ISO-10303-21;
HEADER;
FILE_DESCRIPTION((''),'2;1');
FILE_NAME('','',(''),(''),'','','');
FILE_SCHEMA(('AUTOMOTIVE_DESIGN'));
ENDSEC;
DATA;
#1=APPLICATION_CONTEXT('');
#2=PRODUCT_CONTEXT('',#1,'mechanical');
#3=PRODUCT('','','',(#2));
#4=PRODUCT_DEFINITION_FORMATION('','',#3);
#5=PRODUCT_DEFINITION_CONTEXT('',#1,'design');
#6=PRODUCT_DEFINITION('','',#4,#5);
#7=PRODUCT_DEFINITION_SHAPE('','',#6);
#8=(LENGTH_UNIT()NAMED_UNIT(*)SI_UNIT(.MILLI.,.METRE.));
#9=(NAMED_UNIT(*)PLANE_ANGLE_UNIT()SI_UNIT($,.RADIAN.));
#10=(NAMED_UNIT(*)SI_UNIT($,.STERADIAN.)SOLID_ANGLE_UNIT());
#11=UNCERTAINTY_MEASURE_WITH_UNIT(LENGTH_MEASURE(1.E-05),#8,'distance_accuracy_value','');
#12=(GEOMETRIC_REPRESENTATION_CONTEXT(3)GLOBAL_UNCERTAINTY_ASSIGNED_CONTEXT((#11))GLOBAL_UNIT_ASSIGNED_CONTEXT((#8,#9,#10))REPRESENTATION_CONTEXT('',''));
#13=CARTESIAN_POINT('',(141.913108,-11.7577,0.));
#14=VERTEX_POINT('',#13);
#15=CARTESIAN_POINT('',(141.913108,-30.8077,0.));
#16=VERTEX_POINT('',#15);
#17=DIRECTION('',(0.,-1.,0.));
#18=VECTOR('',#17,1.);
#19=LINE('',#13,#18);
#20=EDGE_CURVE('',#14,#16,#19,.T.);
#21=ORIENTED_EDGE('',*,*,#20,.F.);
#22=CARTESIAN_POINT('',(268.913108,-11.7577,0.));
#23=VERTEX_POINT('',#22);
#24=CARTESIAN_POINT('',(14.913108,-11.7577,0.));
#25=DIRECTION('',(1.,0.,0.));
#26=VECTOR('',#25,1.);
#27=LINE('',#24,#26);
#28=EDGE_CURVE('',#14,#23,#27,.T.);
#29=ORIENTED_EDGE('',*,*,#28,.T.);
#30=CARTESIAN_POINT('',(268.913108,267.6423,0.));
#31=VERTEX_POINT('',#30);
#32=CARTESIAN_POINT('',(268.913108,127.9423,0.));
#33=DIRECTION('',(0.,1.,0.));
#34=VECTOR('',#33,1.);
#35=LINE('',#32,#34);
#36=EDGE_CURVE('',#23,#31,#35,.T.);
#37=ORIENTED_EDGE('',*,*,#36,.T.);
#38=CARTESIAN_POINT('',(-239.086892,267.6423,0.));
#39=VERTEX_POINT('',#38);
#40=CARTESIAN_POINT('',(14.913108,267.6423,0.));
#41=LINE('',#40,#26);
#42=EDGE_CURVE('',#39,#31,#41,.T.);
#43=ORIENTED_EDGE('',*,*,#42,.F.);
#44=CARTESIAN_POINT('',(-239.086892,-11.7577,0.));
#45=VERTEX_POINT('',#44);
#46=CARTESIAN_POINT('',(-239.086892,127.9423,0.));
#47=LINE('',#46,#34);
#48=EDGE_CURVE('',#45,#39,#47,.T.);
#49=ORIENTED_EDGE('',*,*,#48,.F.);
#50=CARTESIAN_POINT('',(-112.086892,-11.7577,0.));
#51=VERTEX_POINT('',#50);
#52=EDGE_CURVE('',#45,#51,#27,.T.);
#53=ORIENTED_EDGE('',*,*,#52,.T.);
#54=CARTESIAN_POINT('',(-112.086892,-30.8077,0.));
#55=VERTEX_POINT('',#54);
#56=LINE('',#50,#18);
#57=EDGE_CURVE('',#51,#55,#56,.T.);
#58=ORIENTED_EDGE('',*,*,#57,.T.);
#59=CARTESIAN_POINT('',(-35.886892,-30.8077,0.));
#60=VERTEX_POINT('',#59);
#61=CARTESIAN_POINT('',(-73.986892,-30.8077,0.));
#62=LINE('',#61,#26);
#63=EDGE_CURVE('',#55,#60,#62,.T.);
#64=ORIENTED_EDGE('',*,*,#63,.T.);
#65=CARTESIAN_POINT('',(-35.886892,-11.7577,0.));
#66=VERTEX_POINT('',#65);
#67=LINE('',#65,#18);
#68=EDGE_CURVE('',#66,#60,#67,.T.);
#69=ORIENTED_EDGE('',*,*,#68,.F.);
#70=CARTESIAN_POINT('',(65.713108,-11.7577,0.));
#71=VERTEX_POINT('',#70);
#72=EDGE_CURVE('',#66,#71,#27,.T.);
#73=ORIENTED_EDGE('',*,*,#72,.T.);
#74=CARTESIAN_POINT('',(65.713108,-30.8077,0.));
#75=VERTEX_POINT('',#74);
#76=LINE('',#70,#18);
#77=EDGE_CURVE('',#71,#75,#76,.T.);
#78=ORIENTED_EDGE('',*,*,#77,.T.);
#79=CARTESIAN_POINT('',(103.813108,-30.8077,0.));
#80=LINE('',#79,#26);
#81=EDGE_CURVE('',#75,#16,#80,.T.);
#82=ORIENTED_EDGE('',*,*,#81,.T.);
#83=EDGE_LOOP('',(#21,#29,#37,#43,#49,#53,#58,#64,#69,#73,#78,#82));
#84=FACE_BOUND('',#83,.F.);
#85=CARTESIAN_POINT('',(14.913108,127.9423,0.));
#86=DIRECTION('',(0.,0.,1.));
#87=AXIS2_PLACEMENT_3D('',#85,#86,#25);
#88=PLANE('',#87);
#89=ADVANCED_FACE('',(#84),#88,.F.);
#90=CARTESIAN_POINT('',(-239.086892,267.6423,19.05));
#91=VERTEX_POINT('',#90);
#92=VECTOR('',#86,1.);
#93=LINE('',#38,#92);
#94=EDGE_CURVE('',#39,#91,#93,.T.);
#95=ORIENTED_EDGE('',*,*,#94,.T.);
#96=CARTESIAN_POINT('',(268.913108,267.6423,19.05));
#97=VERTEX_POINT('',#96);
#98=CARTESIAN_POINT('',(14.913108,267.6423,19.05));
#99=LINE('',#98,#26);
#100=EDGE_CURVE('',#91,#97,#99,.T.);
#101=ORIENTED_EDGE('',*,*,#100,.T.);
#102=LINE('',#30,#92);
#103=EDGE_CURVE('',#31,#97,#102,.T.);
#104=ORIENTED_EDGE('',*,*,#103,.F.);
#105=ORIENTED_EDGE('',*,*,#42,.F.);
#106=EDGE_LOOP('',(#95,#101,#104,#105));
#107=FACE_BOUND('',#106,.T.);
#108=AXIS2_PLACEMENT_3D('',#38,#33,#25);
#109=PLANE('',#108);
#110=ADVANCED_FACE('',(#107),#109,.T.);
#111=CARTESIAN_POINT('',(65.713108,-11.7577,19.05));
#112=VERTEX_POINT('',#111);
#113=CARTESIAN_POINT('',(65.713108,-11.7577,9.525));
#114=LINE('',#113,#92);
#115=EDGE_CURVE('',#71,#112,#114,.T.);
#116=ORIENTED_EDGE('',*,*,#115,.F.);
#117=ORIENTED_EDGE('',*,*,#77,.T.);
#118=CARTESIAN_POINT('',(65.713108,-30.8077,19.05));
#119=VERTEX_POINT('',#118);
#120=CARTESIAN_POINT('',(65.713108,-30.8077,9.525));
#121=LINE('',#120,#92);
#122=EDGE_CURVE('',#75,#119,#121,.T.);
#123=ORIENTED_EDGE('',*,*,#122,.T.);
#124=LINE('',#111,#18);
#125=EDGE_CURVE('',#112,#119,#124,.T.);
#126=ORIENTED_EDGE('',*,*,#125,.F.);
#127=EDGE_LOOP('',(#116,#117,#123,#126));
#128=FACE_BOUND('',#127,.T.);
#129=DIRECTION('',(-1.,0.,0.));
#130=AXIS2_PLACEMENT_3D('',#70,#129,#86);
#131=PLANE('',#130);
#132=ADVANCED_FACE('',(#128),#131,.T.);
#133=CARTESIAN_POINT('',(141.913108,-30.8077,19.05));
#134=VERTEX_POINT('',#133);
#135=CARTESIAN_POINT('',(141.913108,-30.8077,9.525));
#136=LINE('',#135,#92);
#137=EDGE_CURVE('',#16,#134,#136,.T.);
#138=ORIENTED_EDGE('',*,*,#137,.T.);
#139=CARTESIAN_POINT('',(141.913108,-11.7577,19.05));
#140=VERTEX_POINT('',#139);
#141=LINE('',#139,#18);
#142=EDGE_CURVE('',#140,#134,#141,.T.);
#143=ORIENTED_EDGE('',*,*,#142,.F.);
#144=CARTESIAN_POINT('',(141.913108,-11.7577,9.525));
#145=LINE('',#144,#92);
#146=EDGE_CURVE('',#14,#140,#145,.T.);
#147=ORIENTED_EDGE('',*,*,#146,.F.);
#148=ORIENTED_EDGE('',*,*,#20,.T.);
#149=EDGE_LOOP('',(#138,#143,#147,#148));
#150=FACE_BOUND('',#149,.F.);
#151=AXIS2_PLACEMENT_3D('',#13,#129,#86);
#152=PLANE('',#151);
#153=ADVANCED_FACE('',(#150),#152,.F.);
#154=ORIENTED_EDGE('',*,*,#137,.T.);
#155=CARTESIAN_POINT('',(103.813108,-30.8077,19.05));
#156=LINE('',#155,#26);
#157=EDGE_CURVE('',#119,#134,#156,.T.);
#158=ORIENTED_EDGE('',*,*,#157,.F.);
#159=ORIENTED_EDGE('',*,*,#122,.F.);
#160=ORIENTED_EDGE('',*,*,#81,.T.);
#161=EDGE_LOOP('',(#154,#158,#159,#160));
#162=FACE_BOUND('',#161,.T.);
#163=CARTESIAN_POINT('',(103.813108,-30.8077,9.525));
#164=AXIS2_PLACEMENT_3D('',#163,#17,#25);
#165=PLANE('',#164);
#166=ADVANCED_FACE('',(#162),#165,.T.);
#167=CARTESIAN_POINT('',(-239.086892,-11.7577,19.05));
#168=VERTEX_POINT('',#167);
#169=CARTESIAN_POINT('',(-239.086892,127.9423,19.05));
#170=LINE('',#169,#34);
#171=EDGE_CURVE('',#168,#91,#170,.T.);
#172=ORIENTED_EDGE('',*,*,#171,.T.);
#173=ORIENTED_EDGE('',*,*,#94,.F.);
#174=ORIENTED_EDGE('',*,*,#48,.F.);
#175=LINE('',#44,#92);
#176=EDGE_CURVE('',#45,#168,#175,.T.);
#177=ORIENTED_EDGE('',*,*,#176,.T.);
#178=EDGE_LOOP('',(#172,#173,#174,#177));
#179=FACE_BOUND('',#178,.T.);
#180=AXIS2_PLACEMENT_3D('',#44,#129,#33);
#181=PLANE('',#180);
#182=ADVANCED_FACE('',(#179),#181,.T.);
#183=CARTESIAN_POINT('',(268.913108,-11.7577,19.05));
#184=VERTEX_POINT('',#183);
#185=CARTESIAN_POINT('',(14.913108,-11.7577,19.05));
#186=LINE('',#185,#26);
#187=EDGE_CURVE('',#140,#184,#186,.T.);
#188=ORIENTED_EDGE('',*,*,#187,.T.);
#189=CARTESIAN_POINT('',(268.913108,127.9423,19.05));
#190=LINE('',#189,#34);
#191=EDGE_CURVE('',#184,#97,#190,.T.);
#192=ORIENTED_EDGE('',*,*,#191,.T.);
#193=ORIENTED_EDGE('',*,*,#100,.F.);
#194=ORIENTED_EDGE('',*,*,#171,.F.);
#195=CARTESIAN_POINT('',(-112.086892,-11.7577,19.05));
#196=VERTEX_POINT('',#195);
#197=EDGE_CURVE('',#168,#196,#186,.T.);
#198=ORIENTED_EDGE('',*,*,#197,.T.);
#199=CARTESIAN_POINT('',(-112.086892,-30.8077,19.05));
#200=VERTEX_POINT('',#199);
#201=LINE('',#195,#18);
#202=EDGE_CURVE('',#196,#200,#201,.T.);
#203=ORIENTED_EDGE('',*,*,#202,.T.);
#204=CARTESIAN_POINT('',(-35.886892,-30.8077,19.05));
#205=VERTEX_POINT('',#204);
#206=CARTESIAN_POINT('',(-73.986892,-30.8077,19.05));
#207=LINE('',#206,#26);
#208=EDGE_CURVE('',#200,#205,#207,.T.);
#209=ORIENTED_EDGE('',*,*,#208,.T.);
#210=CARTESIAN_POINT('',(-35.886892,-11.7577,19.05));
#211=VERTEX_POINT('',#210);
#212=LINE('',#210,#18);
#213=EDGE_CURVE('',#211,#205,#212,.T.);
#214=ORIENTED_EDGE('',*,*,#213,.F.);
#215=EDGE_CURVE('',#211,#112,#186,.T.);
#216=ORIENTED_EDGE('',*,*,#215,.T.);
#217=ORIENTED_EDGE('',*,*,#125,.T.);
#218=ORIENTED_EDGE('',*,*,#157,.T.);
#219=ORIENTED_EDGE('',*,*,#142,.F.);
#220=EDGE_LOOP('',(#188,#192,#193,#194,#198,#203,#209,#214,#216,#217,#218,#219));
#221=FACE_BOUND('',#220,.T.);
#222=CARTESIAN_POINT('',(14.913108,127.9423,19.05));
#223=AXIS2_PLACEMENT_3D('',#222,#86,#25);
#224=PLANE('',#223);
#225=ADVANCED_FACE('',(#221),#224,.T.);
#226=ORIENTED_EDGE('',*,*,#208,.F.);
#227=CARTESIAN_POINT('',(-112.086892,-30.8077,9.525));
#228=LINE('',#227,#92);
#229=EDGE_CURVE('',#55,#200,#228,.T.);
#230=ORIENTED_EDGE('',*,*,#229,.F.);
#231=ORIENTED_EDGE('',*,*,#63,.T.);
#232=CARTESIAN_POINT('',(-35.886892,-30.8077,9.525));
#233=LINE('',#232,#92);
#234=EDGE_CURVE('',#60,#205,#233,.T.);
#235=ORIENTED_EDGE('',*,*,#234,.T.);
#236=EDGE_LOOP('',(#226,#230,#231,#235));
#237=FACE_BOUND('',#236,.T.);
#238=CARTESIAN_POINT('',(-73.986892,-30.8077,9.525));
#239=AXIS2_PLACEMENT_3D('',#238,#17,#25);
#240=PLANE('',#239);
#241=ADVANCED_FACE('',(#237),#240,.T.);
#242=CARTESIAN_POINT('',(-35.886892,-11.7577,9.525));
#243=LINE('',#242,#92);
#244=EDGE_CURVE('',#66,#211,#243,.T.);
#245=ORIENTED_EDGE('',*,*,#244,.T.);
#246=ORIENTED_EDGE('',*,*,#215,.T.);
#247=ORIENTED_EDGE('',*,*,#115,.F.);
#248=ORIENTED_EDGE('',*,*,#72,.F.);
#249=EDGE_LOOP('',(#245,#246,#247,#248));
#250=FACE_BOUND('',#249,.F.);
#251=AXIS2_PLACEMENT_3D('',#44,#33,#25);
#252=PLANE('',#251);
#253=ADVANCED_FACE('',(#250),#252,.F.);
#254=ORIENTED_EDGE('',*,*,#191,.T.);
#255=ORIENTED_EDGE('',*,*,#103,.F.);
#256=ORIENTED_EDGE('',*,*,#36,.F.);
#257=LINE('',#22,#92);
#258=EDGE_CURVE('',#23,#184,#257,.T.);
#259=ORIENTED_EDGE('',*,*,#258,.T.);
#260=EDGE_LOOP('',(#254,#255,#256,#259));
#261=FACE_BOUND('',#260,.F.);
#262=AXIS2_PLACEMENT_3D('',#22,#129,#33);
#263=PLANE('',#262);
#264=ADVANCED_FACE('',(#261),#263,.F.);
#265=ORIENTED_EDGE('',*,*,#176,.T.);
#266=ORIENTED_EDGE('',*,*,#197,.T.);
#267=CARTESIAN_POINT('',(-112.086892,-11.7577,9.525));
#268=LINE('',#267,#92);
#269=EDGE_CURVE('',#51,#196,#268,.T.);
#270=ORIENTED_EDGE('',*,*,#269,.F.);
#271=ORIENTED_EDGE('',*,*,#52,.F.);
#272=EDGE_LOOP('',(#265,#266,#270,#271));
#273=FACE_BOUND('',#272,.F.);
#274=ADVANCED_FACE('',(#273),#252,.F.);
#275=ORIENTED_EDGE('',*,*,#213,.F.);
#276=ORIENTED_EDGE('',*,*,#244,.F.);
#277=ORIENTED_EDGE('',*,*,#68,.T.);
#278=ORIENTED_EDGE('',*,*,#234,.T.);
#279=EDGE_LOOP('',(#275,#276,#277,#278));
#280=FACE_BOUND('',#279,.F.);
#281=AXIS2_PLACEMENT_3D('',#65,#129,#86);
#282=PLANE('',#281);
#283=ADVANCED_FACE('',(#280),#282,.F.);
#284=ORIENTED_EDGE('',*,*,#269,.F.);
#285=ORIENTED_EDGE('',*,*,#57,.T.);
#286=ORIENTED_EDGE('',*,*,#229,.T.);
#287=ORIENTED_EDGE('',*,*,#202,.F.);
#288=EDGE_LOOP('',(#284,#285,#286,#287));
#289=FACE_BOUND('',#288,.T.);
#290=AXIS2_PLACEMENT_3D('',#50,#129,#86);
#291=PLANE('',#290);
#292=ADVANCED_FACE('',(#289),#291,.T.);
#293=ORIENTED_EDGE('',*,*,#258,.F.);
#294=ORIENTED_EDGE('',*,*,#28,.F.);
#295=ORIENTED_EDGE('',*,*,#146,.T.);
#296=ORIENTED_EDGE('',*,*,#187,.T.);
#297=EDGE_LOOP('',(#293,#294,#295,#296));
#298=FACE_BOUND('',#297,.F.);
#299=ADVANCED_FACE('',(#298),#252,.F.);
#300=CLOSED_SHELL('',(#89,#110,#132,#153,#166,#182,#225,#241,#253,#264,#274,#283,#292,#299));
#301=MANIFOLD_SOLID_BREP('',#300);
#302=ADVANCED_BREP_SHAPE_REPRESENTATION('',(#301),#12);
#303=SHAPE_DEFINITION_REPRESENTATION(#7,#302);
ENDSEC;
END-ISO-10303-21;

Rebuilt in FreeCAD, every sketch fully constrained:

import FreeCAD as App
import Part
import Sketcher
from FreeCAD import Vector
Q = App.Units.Quantity


def add_polygon(sketch, points):
    """Adds a closed chain of lines whose ends are joined by coincident constraints."""
    first, n = sketch.GeometryCount, len(points)
    for a, b in zip(points, points[1:] + points[:1]):
        sketch.addGeometry(Part.LineSegment(App.Vector(*a, 0), App.Vector(*b, 0)), False)
    for i in range(n):
        sketch.addConstraint(Sketcher.Constraint("Coincident", first + i, 2, first + (i + 1) % n, 1))

doc = App.newDocument("Part")
body = doc.addObject("PartDesign::Body", "Body")

sketch1 = doc.addObject("Sketcher::SketchObject", "Sketch")
body.addObject(sketch1)
sketch1.AttachmentSupport = (doc.XY_Plane, [""])
sketch1.MapMode = "FlatFace"
add_polygon(sketch1, [(-239.086892, 267.6423), (-239.086892, -11.7577), (268.913108, -11.7577), (268.913108, 267.6423)])
sketch1.addConstraint([
    Sketcher.Constraint("Vertical", 0),
    Sketcher.Constraint("Horizontal", 1),
    Sketcher.Constraint("Vertical", 2),
    Sketcher.Constraint("Horizontal", 3),
    Sketcher.Constraint("DistanceX", 1, 1, 1, 2, Q("20 in")),
    Sketcher.Constraint("DistanceY", 0, 2, 0, 1, Q("11 in")),
    Sketcher.Constraint("DistanceY", 0, 2, -1, 1, Q("11.7577 mm")),
    Sketcher.Constraint("DistanceX", 0, 2, -1, 1, Q("239.086892 mm")),
])
pad1 = doc.addObject("PartDesign::Pad", "Pad")
body.addObject(pad1)
pad1.Profile = sketch1
pad1.Length = Q("0.75 in")

sketch2 = doc.addObject("Sketcher::SketchObject", "Sketch001")
body.addObject(sketch2)
sketch2.AttachmentSupport = (doc.XZ_Plane, [""])
sketch2.MapMode = "FlatFace"
sketch2.AttachmentOffset = App.Placement(Vector(0, 0, 11.7577), App.Rotation())
add_polygon(sketch2, [(65.713108, 19.05), (65.713108, 0), (141.913108, 0), (141.913108, 19.05)])
add_polygon(sketch2, [(-112.086892, 19.05), (-112.086892, 0), (-35.886892, 0), (-35.886892, 19.05)])
sketch2.addConstraint([
    Sketcher.Constraint("Vertical", 0),
    Sketcher.Constraint("Horizontal", 1),
    Sketcher.Constraint("Vertical", 2),
    Sketcher.Constraint("Horizontal", 3),
    Sketcher.Constraint("Vertical", 4),
    Sketcher.Constraint("Horizontal", 5),
    Sketcher.Constraint("Vertical", 6),
    Sketcher.Constraint("Horizontal", 7),
    Sketcher.Constraint("PointOnObject", 0, 2, -1),
    Sketcher.Constraint("PointOnObject", 4, 2, -1),
    Sketcher.Constraint("Horizontal", 3, 2, 6, 2),
    Sketcher.Constraint("Equal", 3, 5),
    Sketcher.Constraint("DistanceX", 1, 1, 1, 2, Q("3 in")),
    Sketcher.Constraint("DistanceX", 4, 2, 0, 2, Q("7 in")),
    Sketcher.Constraint("DistanceY", 0, 2, 0, 1, Q("0.75 in")),
    Sketcher.Constraint("DistanceX", -1, 1, 0, 2, Q("65.713108 mm")),
])
pad2 = doc.addObject("PartDesign::Pad", "Pad001")
body.addObject(pad2)
pad2.Profile = sketch2
pad2.Length = Q("0.75 in")

doc.recompute()
